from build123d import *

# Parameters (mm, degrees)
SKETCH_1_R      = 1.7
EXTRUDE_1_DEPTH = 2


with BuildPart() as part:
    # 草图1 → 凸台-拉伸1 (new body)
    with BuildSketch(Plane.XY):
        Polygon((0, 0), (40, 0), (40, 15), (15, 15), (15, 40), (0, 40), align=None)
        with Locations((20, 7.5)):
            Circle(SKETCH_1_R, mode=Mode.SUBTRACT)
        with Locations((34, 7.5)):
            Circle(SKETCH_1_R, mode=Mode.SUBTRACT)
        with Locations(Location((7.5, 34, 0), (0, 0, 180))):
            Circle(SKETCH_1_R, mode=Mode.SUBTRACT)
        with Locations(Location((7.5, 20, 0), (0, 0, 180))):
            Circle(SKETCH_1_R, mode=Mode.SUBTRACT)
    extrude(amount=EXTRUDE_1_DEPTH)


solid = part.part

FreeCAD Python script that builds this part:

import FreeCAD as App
import Part
import Sketcher


def add_polygon(sketch, points):
    """Adds a closed chain of lines whose ends are joined by coincident constraints."""
    first, n = sketch.GeometryCount, len(points)
    for a, b in zip(points, points[1:] + points[:1]):
        sketch.addGeometry(Part.LineSegment(App.Vector(*a, 0), App.Vector(*b, 0)), False)
    for i in range(n):
        sketch.addConstraint(Sketcher.Constraint("Coincident", first + i, 2, first + (i + 1) % n, 1))

doc = App.newDocument("Part")
body = doc.addObject("PartDesign::Body", "Body")

sketch1 = body.newObject("Sketcher::SketchObject", "Sketch")
sketch1.AttachmentSupport = (doc.getObject("XY_Plane"), [""])
sketch1.MapMode = "FlatFace"
add_polygon(sketch1, [(0, 0), (40, 0), (40, 15), (15, 15), (15, 40), (0, 40)])
sketch1.addGeometry(Part.Circle(App.Vector(20, 7.5, 0), App.Vector(0, 0, 1), 1.7), False)
sketch1.addGeometry(Part.Circle(App.Vector(7.5, 20, 0), App.Vector(0, 0, 1), 1.7), False)
sketch1.addGeometry(Part.Circle(App.Vector(34, 7.5, 0), App.Vector(0, 0, 1), 1.7), False)
sketch1.addGeometry(Part.Circle(App.Vector(7.5, 34, 0), App.Vector(0, 0, 1), 1.7), False)
sketch1.addConstraint([
    Sketcher.Constraint("Horizontal", 0),
    Sketcher.Constraint("Vertical", 1),
    Sketcher.Constraint("Horizontal", 2),
    Sketcher.Constraint("Vertical", 3),
    Sketcher.Constraint("Horizontal", 4),
    Sketcher.Constraint("Vertical", 5),
    Sketcher.Constraint("Coincident", 5, 2, -1, 1),
    Sketcher.Constraint("Equal", 6, 7),
    Sketcher.Constraint("Equal", 7, 8),
    Sketcher.Constraint("Equal", 8, 9),
    Sketcher.Constraint("Horizontal", 6, 3, 8, 3),
    Sketcher.Constraint("Vertical", 7, 3, 9, 3),
    Sketcher.Constraint("Equal", 4, 1),
    Sketcher.Constraint("Equal", 2, 3),
    Sketcher.Constraint("Diameter", 6, 3.4),
    Sketcher.Constraint("DistanceX", 0, 1, 0, 2, 40.0),
    Sketcher.Constraint("DistanceX", 2, 2, 2, 1, 25.0),
    Sketcher.Constraint("DistanceX", -1, 1, 6, 3, 20.0),
    Sketcher.Constraint("DistanceY", -1, 1, 7, 3, 20.0),
    Sketcher.Constraint("DistanceX", -1, 1, 8, 3, 34.0),
    Sketcher.Constraint("DistanceY", -1, 1, 9, 3, 34.0),
    Sketcher.Constraint("DistanceY", -1, 1, 6, 3, 7.5),
    Sketcher.Constraint("DistanceX", -1, 1, 7, 3, 7.5),
])
pad1 = body.newObject("PartDesign::Pad", "Pad")
pad1.Profile = sketch1
pad1.Length = 2

doc.recompute()
